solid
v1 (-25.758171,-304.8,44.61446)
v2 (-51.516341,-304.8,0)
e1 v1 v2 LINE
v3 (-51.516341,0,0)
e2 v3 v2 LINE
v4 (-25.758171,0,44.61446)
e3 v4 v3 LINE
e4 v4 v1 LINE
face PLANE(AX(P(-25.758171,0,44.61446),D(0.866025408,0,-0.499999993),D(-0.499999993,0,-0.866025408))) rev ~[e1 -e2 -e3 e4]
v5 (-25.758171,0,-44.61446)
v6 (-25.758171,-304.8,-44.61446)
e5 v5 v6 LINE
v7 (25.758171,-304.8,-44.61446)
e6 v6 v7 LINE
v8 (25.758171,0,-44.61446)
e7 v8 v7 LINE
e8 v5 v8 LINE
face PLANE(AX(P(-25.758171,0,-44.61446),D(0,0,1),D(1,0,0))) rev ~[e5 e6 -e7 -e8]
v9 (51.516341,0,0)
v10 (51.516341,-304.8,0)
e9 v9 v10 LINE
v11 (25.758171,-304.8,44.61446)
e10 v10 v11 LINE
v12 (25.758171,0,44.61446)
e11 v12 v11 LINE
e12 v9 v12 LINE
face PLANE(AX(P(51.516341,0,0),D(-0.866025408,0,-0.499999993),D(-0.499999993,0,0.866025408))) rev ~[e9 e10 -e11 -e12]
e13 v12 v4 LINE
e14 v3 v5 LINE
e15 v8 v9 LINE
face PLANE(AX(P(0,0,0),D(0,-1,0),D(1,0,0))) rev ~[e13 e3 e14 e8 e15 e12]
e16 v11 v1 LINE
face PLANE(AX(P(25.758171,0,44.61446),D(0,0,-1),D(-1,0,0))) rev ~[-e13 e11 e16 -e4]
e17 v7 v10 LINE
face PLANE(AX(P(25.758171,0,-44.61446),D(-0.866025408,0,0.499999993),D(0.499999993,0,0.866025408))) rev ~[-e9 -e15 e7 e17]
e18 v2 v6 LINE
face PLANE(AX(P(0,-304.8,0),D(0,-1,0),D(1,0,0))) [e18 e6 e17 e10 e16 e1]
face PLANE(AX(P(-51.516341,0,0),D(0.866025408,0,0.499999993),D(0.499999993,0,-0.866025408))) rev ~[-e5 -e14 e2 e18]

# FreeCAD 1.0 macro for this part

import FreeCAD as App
import Part
import Sketcher
from FreeCAD import Vector
Q = App.Units.Quantity

doc = App.newDocument("Part")
body = doc.addObject("PartDesign::Body", "Body")

# Sketch on XZ plane
sketch1 = doc.addObject("Sketcher::SketchObject", "Sketch")
body.addObject(sketch1)
sketch1.AttachmentSupport = (doc.XZ_Plane, [""])
sketch1.MapMode = "FlatFace"
sketch1.addGeometry(Part.LineSegment(Vector(26, 45, 0), Vector(-26, 45, 0)), False)
sketch1.addGeometry(Part.LineSegment(Vector(-26, 45, 0), Vector(-52, 0, 0)), False)
sketch1.addGeometry(Part.LineSegment(Vector(-52, 0, 0), Vector(-26, -45, 0)), False)
sketch1.addGeometry(Part.LineSegment(Vector(-26, -45, 0), Vector(26, -45, 0)), False)
sketch1.addGeometry(Part.LineSegment(Vector(26, -45, 0), Vector(52, 0, 0)), False)
sketch1.addGeometry(Part.LineSegment(Vector(52, 0, 0), Vector(26, 45, 0)), False)
sketch1.addConstraint(Sketcher.Constraint("Coincident", 0, 2, 1, 1))
sketch1.addConstraint(Sketcher.Constraint("Coincident", 1, 2, 2, 1))
sketch1.addConstraint(Sketcher.Constraint("Coincident", 2, 2, 3, 1))
sketch1.addConstraint(Sketcher.Constraint("Coincident", 3, 2, 4, 1))
sketch1.addConstraint(Sketcher.Constraint("Coincident", 4, 2, 5, 1))
sketch1.addConstraint(Sketcher.Constraint("Coincident", 5, 2, 0, 1))
sketch1.addConstraint(Sketcher.Constraint("Horizontal", 0))
sketch1.addConstraint(Sketcher.Constraint("Horizontal", 3))
sketch1.addConstraint(Sketcher.Constraint("Symmetric", 0, 2, 3, 2, -1, 1))
sketch1.addConstraint(Sketcher.Constraint("Symmetric", 1, 2, 4, 2, -1, 1))
sketch1.addConstraint(Sketcher.Constraint("PointOnObject", 1, 2, -1))
sketch1.addConstraint(Sketcher.Constraint("Parallel", 2, 5))
sketch1.addConstraint(Sketcher.Constraint("Vertical", 0, 2, 2, 2))
sketch1.addConstraint(Sketcher.Constraint("Angle", 1, Q("-120 deg")))
sketch1.addConstraint(Sketcher.Constraint("Distance", 1, 51.516341))
sketch1.addConstraint(Sketcher.Constraint("DistanceX", 0, 2, 0, 1, 51.516342))
pad1 = doc.addObject("PartDesign::Pad", "Pad")
body.addObject(pad1)
pad1.Profile = sketch1
pad1.Length = Q("12 in")

doc.recompute()
